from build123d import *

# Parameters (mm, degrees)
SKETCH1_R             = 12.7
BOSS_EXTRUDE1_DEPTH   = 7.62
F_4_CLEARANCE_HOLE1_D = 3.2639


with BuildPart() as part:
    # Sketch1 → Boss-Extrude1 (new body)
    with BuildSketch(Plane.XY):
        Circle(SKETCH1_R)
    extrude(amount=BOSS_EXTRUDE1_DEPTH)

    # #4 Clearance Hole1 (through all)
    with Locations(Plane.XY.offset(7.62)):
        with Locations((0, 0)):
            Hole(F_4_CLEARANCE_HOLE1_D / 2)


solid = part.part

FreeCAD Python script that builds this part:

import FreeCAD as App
import Part
import Sketcher

V = App.Vector
Q = App.Units.Quantity

doc = App.newDocument("Part")
body = doc.addObject("PartDesign::Body", "Body")

# Sketch on XY plane
sketch1 = doc.addObject("Sketcher::SketchObject", "Sketch")
body.addObject(sketch1)
sketch1.AttachmentSupport = (doc.XY_Plane, [""])
sketch1.MapMode = "FlatFace"
sketch1.addGeometry(Part.Circle(V(0, 0, 0), V(0, 0, 1), 13), False)
sketch1.addConstraint(Sketcher.Constraint("Coincident", 0, 3, -1, 1))
sketch1.addConstraint(Sketcher.Constraint("Diameter", 0, Q("1 in")))
pad1 = doc.addObject("PartDesign::Pad", "Pad")
body.addObject(pad1)
pad1.Profile = sketch1
pad1.Length = Q("0.3 in")

# Sketch on XY plane
sketch2 = doc.addObject("Sketcher::SketchObject", "Sketch001")
body.addObject(sketch2)
sketch2.AttachmentSupport = (doc.XY_Plane, [""])
sketch2.MapMode = "FlatFace"
sketch2.AttachmentOffset = App.Placement(V(0, 0, 0.3 * 25.4), App.Rotation())
sketch2.addGeometry(Part.Circle(V(0, 0, 0), V(0, 0, 1), 1.6), False)
sketch2.addConstraint(Sketcher.Constraint("Coincident", 0, 3, -1, 1))
sketch2.addConstraint(Sketcher.Constraint("Diameter", 0, Q("0.1285 in")))
doc.recompute()
hole = doc.addObject("PartDesign::Hole", "Hole")
body.addObject(hole)
hole.Profile = sketch2
hole.ThreadType = "None"
hole.Diameter = Q("0.1285 in")
hole.DepthType = "ThroughAll"

doc.recompute()
